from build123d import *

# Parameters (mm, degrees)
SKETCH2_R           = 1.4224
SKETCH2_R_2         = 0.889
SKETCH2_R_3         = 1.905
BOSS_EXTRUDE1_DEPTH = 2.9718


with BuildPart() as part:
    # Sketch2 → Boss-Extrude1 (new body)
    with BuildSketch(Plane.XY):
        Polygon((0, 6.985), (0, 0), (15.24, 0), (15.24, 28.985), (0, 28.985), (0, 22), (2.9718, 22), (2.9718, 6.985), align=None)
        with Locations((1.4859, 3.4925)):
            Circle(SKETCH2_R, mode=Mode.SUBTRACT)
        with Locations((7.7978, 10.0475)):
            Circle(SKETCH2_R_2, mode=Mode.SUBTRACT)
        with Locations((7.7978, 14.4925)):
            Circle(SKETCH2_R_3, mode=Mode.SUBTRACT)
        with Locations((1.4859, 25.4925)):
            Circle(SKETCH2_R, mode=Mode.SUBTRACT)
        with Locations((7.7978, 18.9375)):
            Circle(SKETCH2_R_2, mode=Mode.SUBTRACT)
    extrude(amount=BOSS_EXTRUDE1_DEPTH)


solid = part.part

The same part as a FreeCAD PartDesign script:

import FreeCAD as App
import Part
import Sketcher
Q = App.Units.Quantity

doc = App.newDocument("Part")
body = doc.addObject("PartDesign::Body", "Body")

# Sketch on XY plane
sketch1 = body.newObject("Sketcher::SketchObject", "Sketch")
sketch1.AttachmentSupport = (doc.getObject("XY_Plane"), [""])
sketch1.MapMode = "FlatFace"
sketch1.addGeometry(Part.LineSegment(App.Vector(0, 7, 0), App.Vector(0, 0, 0)), False)
sketch1.addGeometry(Part.LineSegment(App.Vector(0, 0, 0), App.Vector(15.2, 0, 0)), False)
sketch1.addGeometry(Part.LineSegment(App.Vector(15.2, 0, 0), App.Vector(15.2, 29, 0)), False)
sketch1.addGeometry(Part.LineSegment(App.Vector(15.2, 29, 0), App.Vector(0, 29, 0)), False)
sketch1.addGeometry(Part.LineSegment(App.Vector(0, 29, 0), App.Vector(0, 22, 0)), False)
sketch1.addGeometry(Part.LineSegment(App.Vector(0, 22, 0), App.Vector(3, 22, 0)), False)
sketch1.addGeometry(Part.LineSegment(App.Vector(3, 22, 0), App.Vector(3, 7, 0)), False)
sketch1.addGeometry(Part.LineSegment(App.Vector(3, 7, 0), App.Vector(0, 7, 0)), False)
sketch1.addGeometry(Part.Circle(App.Vector(1.5, 3.5, 0), App.Vector(0, 0, 1), 1.4), False)
sketch1.addGeometry(Part.Circle(App.Vector(7.8, 10, 0), App.Vector(0, 0, 1), 0.9), False)
sketch1.addGeometry(Part.Circle(App.Vector(1.5, 25.5, 0), App.Vector(0, 0, 1), 1.4), False)
sketch1.addGeometry(Part.Circle(App.Vector(7.8, 14.5, 0), App.Vector(0, 0, 1), 1.9), False)
sketch1.addGeometry(Part.Circle(App.Vector(7.8, 18.9, 0), App.Vector(0, 0, 1), 0.9), False)
sketch1.addConstraint(Sketcher.Constraint("Coincident", 0, 2, 1, 1))
sketch1.addConstraint(Sketcher.Constraint("Coincident", 1, 2, 2, 1))
sketch1.addConstraint(Sketcher.Constraint("Coincident", 2, 2, 3, 1))
sketch1.addConstraint(Sketcher.Constraint("Coincident", 3, 2, 4, 1))
sketch1.addConstraint(Sketcher.Constraint("Coincident", 4, 2, 5, 1))
sketch1.addConstraint(Sketcher.Constraint("Coincident", 5, 2, 6, 1))
sketch1.addConstraint(Sketcher.Constraint("Coincident", 6, 2, 7, 1))
sketch1.addConstraint(Sketcher.Constraint("Coincident", 7, 2, 0, 1))
sketch1.addConstraint(Sketcher.Constraint("Vertical", 0))
sketch1.addConstraint(Sketcher.Constraint("Horizontal", 1))
sketch1.addConstraint(Sketcher.Constraint("Vertical", 2))
sketch1.addConstraint(Sketcher.Constraint("Horizontal", 3))
sketch1.addConstraint(Sketcher.Constraint("Vertical", 4))
sketch1.addConstraint(Sketcher.Constraint("Horizontal", 5))
sketch1.addConstraint(Sketcher.Constraint("Vertical", 6))
sketch1.addConstraint(Sketcher.Constraint("Horizontal", 7))
sketch1.addConstraint(Sketcher.Constraint("Coincident", 0, 2, -1, 1))
sketch1.addConstraint(Sketcher.Constraint("Equal", 8, 10))
sketch1.addConstraint(Sketcher.Constraint("Equal", 9, 12))
sketch1.addConstraint(Sketcher.Constraint("PointOnObject", 3, 2, -2))
sketch1.addConstraint(Sketcher.Constraint("Vertical", 8, 3, 10, 3))
sketch1.addConstraint(Sketcher.Constraint("Vertical", 9, 3, 11, 3))
sketch1.addConstraint(Sketcher.Constraint("Vertical", 11, 3, 12, 3))
sketch1.addConstraint(Sketcher.Constraint("Equal", 0, 4))
sketch1.addConstraint(Sketcher.Constraint("Diameter", 9, Q("0.07 in")))
sketch1.addConstraint(Sketcher.Constraint("Diameter", 11, Q("0.15 in")))
sketch1.addConstraint(Sketcher.Constraint("Diameter", 8, Q("0.112 in")))
sketch1.addConstraint(Sketcher.Constraint("DistanceX", 1, 1, 1, 2, Q("0.6 in")))
sketch1.addConstraint(Sketcher.Constraint("DistanceX", 5, 1, 5, 2, Q("0.117 in")))
sketch1.addConstraint(Sketcher.Constraint("DistanceY", 0, 2, 0, 1, Q("0.275 in")))
sketch1.addConstraint(Sketcher.Constraint("DistanceY", 9, 3, 12, 3, Q("0.35 in")))
sketch1.addConstraint(Sketcher.Constraint("DistanceX", 5, 2, 12, 3, Q("0.19 in")))
sketch1.addConstraint(Sketcher.Constraint("DistanceY", 9, 3, 11, 3, Q("0.175 in")))
sketch1.addConstraint(Sketcher.Constraint("DistanceY", 2, 1, 2, 2, 28.985))
sketch1.addConstraint(Sketcher.Constraint("DistanceX", -1, 1, 8, 3, Q("0.0585 in")))
sketch1.addConstraint(Sketcher.Constraint("DistanceY", -1, 1, 8, 3, Q("0.1375 in")))
sketch1.addConstraint(Sketcher.Constraint("DistanceY", 10, 3, 2, 2, Q("0.1375 in")))
sketch1.addConstraint(Sketcher.Constraint("DistanceY", -1, 1, 9, 3, 10.0475))
pad1 = body.newObject("PartDesign::Pad", "Pad")
pad1.Profile = sketch1
pad1.Length = Q("0.117 in")

doc.recompute()
